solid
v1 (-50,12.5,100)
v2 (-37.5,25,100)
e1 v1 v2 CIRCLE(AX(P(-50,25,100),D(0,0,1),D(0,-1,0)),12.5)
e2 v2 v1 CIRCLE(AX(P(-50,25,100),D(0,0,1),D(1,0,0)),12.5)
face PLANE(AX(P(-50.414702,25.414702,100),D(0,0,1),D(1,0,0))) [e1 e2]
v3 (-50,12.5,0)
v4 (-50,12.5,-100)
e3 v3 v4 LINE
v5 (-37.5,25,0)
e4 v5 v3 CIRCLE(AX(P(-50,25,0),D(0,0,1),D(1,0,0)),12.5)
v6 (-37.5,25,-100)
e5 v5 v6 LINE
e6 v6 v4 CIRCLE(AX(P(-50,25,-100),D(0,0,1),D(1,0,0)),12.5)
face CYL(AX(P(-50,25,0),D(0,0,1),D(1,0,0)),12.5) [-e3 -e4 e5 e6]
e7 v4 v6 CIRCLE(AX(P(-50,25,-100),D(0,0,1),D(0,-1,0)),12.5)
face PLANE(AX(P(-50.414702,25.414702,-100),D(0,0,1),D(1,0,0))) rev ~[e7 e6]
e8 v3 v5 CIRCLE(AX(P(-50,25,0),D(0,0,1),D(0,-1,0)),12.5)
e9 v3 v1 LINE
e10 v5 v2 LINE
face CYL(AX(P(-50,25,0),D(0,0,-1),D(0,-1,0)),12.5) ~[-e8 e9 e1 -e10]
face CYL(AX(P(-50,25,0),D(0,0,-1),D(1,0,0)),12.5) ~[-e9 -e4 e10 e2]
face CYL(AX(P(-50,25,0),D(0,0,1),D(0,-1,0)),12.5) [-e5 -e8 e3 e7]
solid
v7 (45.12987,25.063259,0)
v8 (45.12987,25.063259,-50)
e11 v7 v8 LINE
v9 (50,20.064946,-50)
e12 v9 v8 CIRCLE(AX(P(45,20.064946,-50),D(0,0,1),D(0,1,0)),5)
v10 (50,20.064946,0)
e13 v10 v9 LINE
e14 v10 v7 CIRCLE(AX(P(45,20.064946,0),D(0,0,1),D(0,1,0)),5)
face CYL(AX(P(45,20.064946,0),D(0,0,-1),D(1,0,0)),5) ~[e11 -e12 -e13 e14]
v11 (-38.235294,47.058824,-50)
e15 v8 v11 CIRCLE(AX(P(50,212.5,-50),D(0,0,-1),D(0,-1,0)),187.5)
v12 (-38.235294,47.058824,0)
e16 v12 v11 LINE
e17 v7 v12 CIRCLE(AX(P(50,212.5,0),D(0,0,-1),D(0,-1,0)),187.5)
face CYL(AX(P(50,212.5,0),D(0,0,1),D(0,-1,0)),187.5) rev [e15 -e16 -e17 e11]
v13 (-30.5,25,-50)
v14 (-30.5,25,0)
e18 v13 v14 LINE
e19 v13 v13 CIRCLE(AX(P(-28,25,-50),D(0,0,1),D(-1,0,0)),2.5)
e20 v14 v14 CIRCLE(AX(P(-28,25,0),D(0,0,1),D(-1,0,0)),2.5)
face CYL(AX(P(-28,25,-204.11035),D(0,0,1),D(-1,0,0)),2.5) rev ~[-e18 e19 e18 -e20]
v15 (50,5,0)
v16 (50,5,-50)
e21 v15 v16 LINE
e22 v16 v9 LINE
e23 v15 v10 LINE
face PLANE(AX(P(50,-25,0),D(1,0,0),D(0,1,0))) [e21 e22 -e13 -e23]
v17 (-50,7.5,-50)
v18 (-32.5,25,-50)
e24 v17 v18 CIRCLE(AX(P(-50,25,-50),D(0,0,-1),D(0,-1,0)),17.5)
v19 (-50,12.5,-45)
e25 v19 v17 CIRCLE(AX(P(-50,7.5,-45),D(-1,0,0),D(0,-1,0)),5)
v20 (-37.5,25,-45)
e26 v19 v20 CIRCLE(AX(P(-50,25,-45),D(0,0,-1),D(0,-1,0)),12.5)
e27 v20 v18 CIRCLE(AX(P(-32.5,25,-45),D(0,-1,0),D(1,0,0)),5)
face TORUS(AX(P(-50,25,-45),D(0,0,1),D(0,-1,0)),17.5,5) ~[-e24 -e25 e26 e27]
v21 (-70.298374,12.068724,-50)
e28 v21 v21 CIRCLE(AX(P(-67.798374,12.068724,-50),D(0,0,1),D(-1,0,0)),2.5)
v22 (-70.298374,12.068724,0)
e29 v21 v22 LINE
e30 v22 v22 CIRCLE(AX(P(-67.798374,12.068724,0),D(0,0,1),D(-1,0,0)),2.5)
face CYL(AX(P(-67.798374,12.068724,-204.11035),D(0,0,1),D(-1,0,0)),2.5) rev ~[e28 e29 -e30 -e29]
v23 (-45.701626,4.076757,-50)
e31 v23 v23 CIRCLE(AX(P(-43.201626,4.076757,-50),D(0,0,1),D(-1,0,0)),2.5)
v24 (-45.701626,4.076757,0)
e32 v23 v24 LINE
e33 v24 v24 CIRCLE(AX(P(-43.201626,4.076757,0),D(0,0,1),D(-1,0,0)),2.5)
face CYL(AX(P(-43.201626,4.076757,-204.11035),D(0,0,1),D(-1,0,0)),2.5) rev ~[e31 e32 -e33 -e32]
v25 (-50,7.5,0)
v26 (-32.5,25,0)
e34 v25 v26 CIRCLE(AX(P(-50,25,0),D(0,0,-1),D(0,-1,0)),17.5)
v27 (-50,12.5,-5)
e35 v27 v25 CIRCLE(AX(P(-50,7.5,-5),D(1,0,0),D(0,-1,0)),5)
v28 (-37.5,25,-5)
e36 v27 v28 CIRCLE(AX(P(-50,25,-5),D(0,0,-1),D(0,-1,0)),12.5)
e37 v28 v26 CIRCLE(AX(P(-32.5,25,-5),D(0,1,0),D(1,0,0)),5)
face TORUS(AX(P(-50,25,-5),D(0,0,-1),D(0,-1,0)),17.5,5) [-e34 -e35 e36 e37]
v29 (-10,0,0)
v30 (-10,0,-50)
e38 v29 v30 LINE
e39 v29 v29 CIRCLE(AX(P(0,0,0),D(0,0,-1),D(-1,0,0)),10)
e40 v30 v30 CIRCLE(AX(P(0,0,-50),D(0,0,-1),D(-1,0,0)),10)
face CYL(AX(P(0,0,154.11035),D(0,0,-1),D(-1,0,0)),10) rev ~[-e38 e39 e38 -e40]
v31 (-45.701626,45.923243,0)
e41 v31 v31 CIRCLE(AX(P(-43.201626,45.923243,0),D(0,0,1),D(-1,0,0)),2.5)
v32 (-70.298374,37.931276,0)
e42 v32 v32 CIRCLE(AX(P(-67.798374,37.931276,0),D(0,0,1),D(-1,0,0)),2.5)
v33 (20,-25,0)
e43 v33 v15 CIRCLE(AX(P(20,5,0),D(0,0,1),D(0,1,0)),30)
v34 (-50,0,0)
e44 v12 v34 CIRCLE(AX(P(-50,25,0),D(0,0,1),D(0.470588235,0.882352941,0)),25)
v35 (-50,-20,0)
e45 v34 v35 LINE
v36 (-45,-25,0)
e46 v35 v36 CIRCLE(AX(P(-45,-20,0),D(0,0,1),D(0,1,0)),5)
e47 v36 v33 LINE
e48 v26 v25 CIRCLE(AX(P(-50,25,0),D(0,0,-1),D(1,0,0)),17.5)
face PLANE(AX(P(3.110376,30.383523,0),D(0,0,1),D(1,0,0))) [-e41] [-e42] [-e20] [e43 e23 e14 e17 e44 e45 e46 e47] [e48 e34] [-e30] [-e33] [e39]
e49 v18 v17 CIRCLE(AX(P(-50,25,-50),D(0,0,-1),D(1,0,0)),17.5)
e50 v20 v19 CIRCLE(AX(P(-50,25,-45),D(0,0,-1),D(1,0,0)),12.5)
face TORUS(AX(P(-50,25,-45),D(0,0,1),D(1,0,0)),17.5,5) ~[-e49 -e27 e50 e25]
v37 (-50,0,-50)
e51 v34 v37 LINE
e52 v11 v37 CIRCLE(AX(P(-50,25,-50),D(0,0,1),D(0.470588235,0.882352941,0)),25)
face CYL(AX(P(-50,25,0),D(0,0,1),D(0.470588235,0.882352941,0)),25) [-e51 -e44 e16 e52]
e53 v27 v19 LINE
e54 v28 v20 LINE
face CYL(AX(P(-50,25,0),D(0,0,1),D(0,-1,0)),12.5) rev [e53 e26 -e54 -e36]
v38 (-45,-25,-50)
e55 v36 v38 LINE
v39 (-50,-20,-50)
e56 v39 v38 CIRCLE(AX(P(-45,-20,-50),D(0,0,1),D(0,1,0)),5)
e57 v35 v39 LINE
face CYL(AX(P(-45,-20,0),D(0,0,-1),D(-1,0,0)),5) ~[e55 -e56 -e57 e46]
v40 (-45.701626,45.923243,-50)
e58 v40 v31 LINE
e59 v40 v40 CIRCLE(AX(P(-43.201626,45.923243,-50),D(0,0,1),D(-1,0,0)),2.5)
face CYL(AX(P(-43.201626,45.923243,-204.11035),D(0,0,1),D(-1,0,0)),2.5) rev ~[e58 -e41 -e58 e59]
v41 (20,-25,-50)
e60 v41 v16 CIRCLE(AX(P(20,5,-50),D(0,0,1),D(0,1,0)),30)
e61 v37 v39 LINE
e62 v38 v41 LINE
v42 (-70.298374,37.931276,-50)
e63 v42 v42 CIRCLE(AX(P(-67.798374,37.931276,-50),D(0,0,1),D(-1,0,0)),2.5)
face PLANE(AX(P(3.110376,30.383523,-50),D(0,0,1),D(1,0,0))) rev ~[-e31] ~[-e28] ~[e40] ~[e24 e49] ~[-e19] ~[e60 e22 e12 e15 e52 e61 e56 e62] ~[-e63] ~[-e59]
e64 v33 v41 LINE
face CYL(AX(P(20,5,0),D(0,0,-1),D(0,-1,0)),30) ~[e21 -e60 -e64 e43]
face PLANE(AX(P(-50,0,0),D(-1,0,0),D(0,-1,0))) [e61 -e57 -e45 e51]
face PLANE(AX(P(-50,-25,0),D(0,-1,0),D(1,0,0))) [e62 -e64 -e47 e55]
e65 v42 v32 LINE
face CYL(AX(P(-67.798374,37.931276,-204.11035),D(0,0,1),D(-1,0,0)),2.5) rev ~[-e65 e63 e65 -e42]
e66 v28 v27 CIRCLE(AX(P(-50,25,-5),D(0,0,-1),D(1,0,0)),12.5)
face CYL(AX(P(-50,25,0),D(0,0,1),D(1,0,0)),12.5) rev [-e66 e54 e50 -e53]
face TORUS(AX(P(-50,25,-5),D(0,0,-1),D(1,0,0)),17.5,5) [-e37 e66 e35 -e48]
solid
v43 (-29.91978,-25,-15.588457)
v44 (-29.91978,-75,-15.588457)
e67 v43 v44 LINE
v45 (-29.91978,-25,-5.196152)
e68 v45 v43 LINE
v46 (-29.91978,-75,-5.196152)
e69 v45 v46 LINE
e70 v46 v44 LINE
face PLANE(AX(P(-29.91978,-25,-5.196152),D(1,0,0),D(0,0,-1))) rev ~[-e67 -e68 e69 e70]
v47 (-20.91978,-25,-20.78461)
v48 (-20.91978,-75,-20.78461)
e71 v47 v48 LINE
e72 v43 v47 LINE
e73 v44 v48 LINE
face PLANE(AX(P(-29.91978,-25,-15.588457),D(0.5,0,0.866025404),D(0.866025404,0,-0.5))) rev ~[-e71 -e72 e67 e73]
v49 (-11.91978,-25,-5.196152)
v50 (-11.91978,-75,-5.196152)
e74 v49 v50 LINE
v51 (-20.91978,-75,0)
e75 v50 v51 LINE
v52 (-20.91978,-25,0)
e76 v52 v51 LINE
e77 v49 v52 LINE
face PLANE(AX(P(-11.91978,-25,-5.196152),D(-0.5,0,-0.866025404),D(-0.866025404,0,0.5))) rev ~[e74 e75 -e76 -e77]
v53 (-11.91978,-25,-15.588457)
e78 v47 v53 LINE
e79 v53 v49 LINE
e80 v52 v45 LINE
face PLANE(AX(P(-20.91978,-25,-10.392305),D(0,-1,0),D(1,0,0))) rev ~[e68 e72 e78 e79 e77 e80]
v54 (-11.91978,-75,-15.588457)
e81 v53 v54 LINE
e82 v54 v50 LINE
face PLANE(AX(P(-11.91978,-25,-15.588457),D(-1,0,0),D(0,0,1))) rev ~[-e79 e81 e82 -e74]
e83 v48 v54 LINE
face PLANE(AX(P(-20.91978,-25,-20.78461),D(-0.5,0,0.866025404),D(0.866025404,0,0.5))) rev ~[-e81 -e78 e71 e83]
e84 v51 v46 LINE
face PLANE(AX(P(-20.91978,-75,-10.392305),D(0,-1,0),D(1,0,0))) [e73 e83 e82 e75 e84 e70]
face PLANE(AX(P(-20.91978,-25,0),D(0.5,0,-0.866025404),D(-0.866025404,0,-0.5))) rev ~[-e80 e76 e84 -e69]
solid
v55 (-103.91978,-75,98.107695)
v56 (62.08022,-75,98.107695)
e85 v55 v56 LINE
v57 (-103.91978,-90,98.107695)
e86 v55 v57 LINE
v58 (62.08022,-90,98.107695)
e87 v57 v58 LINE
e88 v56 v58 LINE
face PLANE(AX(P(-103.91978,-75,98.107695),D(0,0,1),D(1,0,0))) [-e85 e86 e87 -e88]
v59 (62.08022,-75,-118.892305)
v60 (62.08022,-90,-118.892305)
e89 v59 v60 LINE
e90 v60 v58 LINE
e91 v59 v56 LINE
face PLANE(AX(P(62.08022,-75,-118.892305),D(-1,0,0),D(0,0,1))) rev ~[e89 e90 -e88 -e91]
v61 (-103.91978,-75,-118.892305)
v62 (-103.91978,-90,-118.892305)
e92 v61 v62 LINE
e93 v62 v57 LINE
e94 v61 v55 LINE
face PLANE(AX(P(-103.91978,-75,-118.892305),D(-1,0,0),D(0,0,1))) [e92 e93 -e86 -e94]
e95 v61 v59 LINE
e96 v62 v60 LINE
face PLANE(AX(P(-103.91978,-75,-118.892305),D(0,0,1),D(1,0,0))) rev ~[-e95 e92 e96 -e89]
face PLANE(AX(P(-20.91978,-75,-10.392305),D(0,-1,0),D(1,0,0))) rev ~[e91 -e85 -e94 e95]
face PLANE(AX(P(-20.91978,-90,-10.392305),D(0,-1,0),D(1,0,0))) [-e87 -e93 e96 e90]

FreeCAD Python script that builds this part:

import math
import FreeCAD as App
import Part
import Sketcher

V = App.Vector
Q = App.Units.Quantity


def edges_at(feature, points):
    """Names of the edges that pass closest to the given points."""
    edges = feature.Shape.Edges
    near = lambda p: min(range(len(edges)), key=lambda i: edges[i].distToShape(Part.Vertex(*p))[0])
    return sorted({f"Edge{near(p) + 1}" for p in points})

doc = App.newDocument("Part")
params = doc.addObject("Spreadsheet::Sheet", "Params")
for row, (alias, value) in enumerate([
    ("sketch1_radius", "25 mm"),
    ("sketch1_radius2", "187.5 mm"),
    ("sketch1_radius3", "12.5 mm"),
    ("pad1_length", "50 mm"),
    ("fillet_radius", "5 mm"),
    ("fillet2_radius", "5 mm"),
    ("sketch2_diameter", "20 mm"),
    ("hole_diameter", "20 mm"),
    ("sketch3_diameter", "5 mm"),
    ("hole2_diameter", "5 mm"),
    ("fillet3_radius", "30 mm"),
    ("sketch4_radius", "12.5 mm"),
    ("pad2_length", "200 mm"),
    ("pad3_length", "50 mm"),
    ("sketch6_width", "166 mm"),
    ("sketch6_height", "217 mm"),
    ("pad4_length", "15 mm"),
], start=1):
    params.set(f"A{row}", alias)
    params.set(f"B{row}", "=" + value)
    params.setAlias(f"B{row}", alias)

body = doc.addObject("PartDesign::Body", "Body")

sketch1 = body.newObject("Sketcher::SketchObject", "Sketch")
sketch1.AttachmentSupport = (doc.getObject("XY_Plane"), [""])
sketch1.MapMode = "FlatFace"
sketch1.addGeometry([
    Part.ArcOfCircle(Part.Circle(V(-50, 25, 0), V(0, 0, 1), 25), math.radians(61.927513), math.radians(270)),
    Part.LineSegment(V(-50, 0, 0), V(-50, -25, 0)),
    Part.LineSegment(V(-50, -25, 0), V(50, -25, 0)),
    Part.LineSegment(V(50, -25, 0), V(50, 25, 0)),
    Part.ArcOfCircle(Part.Circle(V(50, 212.5, 0), V(0, 0, 1), 187.5), math.radians(-118.072487), math.radians(-90)),
    Part.ArcOfCircle(Part.Circle(V(-50, 25, 0), V(0, 0, 1), 12.5), math.radians(0), math.radians(270)),
    Part.ArcOfCircle(Part.Circle(V(-50, 25, 0), V(0, 0, 1), 12.5), math.radians(-90), math.radians(0)),
], False)
sketch1.addConstraint([
    Sketcher.Constraint("Coincident", 0, 2, 1, 1),
    Sketcher.Constraint("Coincident", 1, 2, 2, 1),
    Sketcher.Constraint("Coincident", 2, 2, 3, 1),
    Sketcher.Constraint("Coincident", 3, 2, 4, 2),
    Sketcher.Constraint("Tangent", 4, 1, 0, 1),
    Sketcher.Constraint("Tangent", 5, 1, 6, 2),
    Sketcher.Constraint("Coincident", 6, 1, 5, 2),
    Sketcher.Constraint("Vertical", 1),
    Sketcher.Constraint("Horizontal", 2),
    Sketcher.Constraint("Vertical", 3),
    Sketcher.Constraint("Coincident", 5, 3, 0, 3),
    Sketcher.Constraint("Symmetric", 1, 2, 3, 2, -1, 1),
    Sketcher.Constraint("PointOnObject", 0, 2, -1),
    Sketcher.Constraint("Horizontal", 6, 3, 3, 2),
    Sketcher.Constraint("Horizontal", 3, 2, 5, 1),
    Sketcher.Constraint("Vertical", 6, 3, 0, 2),
    Sketcher.Constraint("Vertical", 4, 3, 2, 2),
    Sketcher.Constraint("Vertical", 1, 2, 6, 1),
    Sketcher.Constraint("Radius", 0, Q("25 mm")),
    Sketcher.Constraint("Radius", 4, Q("187.5 mm")),
    Sketcher.Constraint("Radius", 5, Q("12.5 mm")),
])
sketch1.setExpression("Constraints[18]", "Params.sketch1_radius")
sketch1.setExpression("Constraints[19]", "Params.sketch1_radius2")
sketch1.setExpression("Constraints[20]", "Params.sketch1_radius3")
pad1 = body.newObject("PartDesign::Pad", "Pad")
pad1.Profile = sketch1
pad1.setExpression("Length", "Params.pad1_length")
pad1.Reversed = True
doc.recompute()

fillet = body.newObject("PartDesign::Fillet", "Fillet")
fillet.Base = (pad1, edges_at(pad1, [(-37.5, 25, -25), (-58.839, 33.839, 0), (-58.839, 33.839, -50)]))
fillet.setExpression("Radius", "Params.fillet_radius")
doc.recompute()

fillet2 = body.newObject("PartDesign::Fillet", "Fillet001")
fillet2.Base = (fillet, edges_at(fillet, [(-50, -25, -25), (50, 25, -25)]))
fillet2.setExpression("Radius", "Params.fillet2_radius")

sketch2 = body.newObject("Sketcher::SketchObject", "Sketch001")
sketch2.AttachmentSupport = (doc.getObject("XY_Plane"), [""])
sketch2.MapMode = "FlatFace"
sketch2.addGeometry(Part.Circle(V(0, 0, 0), V(0, 0, 1), 10), False)
sketch2.addConstraint([
    Sketcher.Constraint("Coincident", 0, 3, -1, 1),
    Sketcher.Constraint("Diameter", 0, Q("20 mm")),
])
sketch2.setExpression("Constraints[1]", "Params.sketch2_diameter")
doc.recompute()
hole = body.newObject("PartDesign::Hole", "Hole")
hole.Profile = sketch2
hole.ThreadType = "None"
hole.setExpression("Diameter", "Params.hole_diameter")
hole.DepthType = "ThroughAll"

sketch3 = body.newObject("Sketcher::SketchObject", "Sketch002")
sketch3.AttachmentSupport = (doc.getObject("XY_Plane"), [""])
sketch3.MapMode = "FlatFace"
sketch3.AttachmentOffset = App.Placement(V(0, 0, -50), App.Rotation())
sketch3.addGeometry([
    Part.Circle(V(-43.201626, 45.923243, 0), V(0, 0, 1), 2.5),
    Part.Circle(V(-67.798374, 37.931276, 0), V(0, 0, 1), 2.5),
    Part.Circle(V(-67.798374, 12.068724, 0), V(0, 0, 1), 2.5),
    Part.Circle(V(-43.201626, 4.076757, 0), V(0, 0, 1), 2.5),
    Part.Circle(V(-28, 25, 0), V(0, 0, 1), 2.5),
], False)
sketch3.addConstraint([
    Sketcher.Constraint("Equal", 0, 1),
    Sketcher.Constraint("Equal", 1, 2),
    Sketcher.Constraint("Equal", 2, 3),
    Sketcher.Constraint("Equal", 3, 4),
    Sketcher.Constraint("Vertical", 1, 3, 2, 3),
    Sketcher.Constraint("Vertical", 0, 3, 3, 3),
    Sketcher.Constraint("Diameter", 0, Q("5 mm")),
    Sketcher.Constraint("DistanceX", 4, 3, -1, 1, Q("28 mm")),
    Sketcher.Constraint("DistanceY", -1, 1, 4, 3, Q("25 mm")),
    Sketcher.Constraint("DistanceY", 2, 3, 1, 3, Q("25.862551 mm")),
    Sketcher.Constraint("DistanceY", 2, 3, 0, 3, Q("33.854519 mm")),
    Sketcher.Constraint("DistanceY", 3, 3, 1, 3, Q("33.854519 mm")),
    Sketcher.Constraint("DistanceX", 0, 3, -1, 1, Q("43.201626 mm")),
    Sketcher.Constraint("DistanceY", -1, 1, 0, 3, Q("45.923243 mm")),
    Sketcher.Constraint("DistanceX", 1, 3, -1, 1, Q("67.798374 mm")),
])
sketch3.setExpression("Constraints[6]", "Params.sketch3_diameter")
doc.recompute()
hole2 = body.newObject("PartDesign::Hole", "Hole001")
hole2.Profile = sketch3
hole2.ThreadType = "None"
hole2.setExpression("Diameter", "Params.hole2_diameter")
hole2.DepthType = "ThroughAll"
hole2.Reversed = True
doc.recompute()

fillet3 = body.newObject("PartDesign::Fillet", "Fillet002")
fillet3.Base = (hole2, edges_at(hole2, [(50, -25, -25)]))
fillet3.setExpression("Radius", "Params.fillet3_radius")
body2 = doc.addObject("PartDesign::Body", "Body001")

sketch4 = body2.newObject("Sketcher::SketchObject", "Sketch003")
sketch4.AttachmentSupport = (doc.getObject("XY_Plane001"), [""])
sketch4.MapMode = "FlatFace"
sketch4.addGeometry([
    Part.ArcOfCircle(Part.Circle(V(-50, 25, 0), V(0, 0, 1), 12.5), math.radians(0), math.radians(270)),
    Part.ArcOfCircle(Part.Circle(V(-50, 25, 0), V(0, 0, 1), 12.5), math.radians(-90), math.radians(0)),
], False)
sketch4.addConstraint([
    Sketcher.Constraint("Tangent", 0, 1, 1, 2),
    Sketcher.Constraint("Coincident", 1, 1, 0, 2),
    Sketcher.Constraint("Horizontal", 1, 3, 0, 1),
    Sketcher.Constraint("Vertical", 0, 3, 1, 1),
    Sketcher.Constraint("Radius", 0, Q("12.5 mm")),
    Sketcher.Constraint("DistanceX", 0, 3, -1, 1, Q("50 mm")),
    Sketcher.Constraint("DistanceY", -1, 1, 0, 3, Q("25 mm")),
])
sketch4.setExpression("Constraints[4]", "Params.sketch4_radius")
pad2 = body2.newObject("PartDesign::Pad", "Pad001")
pad2.Profile = sketch4
pad2.setExpression("Length", "Params.pad2_length")
pad2.Midplane = True
body3 = doc.addObject("PartDesign::Body", "Body002")

sketch5 = body3.newObject("Sketcher::SketchObject", "Sketch004")
sketch5.AttachmentSupport = (doc.getObject("XZ_Plane002"), [""])
sketch5.MapMode = "FlatFace"
sketch5.AttachmentOffset = App.Placement(V(0, 0, 25), App.Rotation())
sketch5.addGeometry([
    Part.LineSegment(V(-11.91978, -15.588457, 0), V(-11.91978, -5.196152, 0)),
    Part.LineSegment(V(-11.91978, -5.196152, 0), V(-20.91978, 0, 0)),
    Part.LineSegment(V(-20.91978, 0, 0), V(-29.91978, -5.196152, 0)),
    Part.LineSegment(V(-29.91978, -5.196152, 0), V(-29.91978, -15.588457, 0)),
    Part.LineSegment(V(-29.91978, -15.588457, 0), V(-20.91978, -20.78461, 0)),
    Part.LineSegment(V(-20.91978, -20.78461, 0), V(-11.91978, -15.588457, 0)),
], False)
sketch5.addConstraint([
    Sketcher.Constraint("Coincident", 0, 2, 1, 1),
    Sketcher.Constraint("Coincident", 1, 2, 2, 1),
    Sketcher.Constraint("Coincident", 2, 2, 3, 1),
    Sketcher.Constraint("Coincident", 3, 2, 4, 1),
    Sketcher.Constraint("Coincident", 4, 2, 5, 1),
    Sketcher.Constraint("Coincident", 5, 2, 0, 1),
    Sketcher.Constraint("Vertical", 0),
    Sketcher.Constraint("Vertical", 3),
    Sketcher.Constraint("PointOnObject", 1, 2, -1),
    Sketcher.Constraint("Parallel", 1, 4),
    Sketcher.Constraint("Parallel", 2, 5),
    Sketcher.Constraint("Horizontal", 0, 2, 2, 2),
    Sketcher.Constraint("Horizontal", 3, 2, 5, 2),
    Sketcher.Constraint("Vertical", 1, 2, 4, 2),
    Sketcher.Constraint("Angle", 1, Q("150 deg")),
    Sketcher.Constraint("DistanceX", 1, 2, 0, 2, Q("9 mm")),
    Sketcher.Constraint("DistanceY", 0, 1, 0, 2, Q("10.392305 mm")),
    Sketcher.Constraint("DistanceX", 0, 2, -1, 1, Q("11.91978 mm")),
])
pad3 = body3.newObject("PartDesign::Pad", "Pad002")
pad3.Profile = sketch5
pad3.setExpression("Length", "Params.pad3_length")
body4 = doc.addObject("PartDesign::Body", "Body003")

sketch6 = body4.newObject("Sketcher::SketchObject", "Sketch005")
sketch6.AttachmentSupport = (doc.getObject("XZ_Plane003"), [""])
sketch6.MapMode = "FlatFace"
sketch6.AttachmentOffset = App.Placement(V(0, 0, 75), App.Rotation())
sketch6.addGeometry([
    Part.LineSegment(V(-103.91978, 98.107695, 0), V(-103.91978, -118.892305, 0)),
    Part.LineSegment(V(-103.91978, -118.892305, 0), V(62.08022, -118.892305, 0)),
    Part.LineSegment(V(62.08022, -118.892305, 0), V(62.08022, 98.107695, 0)),
    Part.LineSegment(V(62.08022, 98.107695, 0), V(-103.91978, 98.107695, 0)),
], False)
sketch6.addConstraint([
    Sketcher.Constraint("Coincident", 0, 2, 1, 1),
    Sketcher.Constraint("Coincident", 1, 2, 2, 1),
    Sketcher.Constraint("Coincident", 2, 2, 3, 1),
    Sketcher.Constraint("Coincident", 3, 2, 0, 1),
    Sketcher.Constraint("Vertical", 0),
    Sketcher.Constraint("Horizontal", 1),
    Sketcher.Constraint("Vertical", 2),
    Sketcher.Constraint("Horizontal", 3),
    Sketcher.Constraint("DistanceX", 1, 1, 1, 2, Q("166 mm")),
    Sketcher.Constraint("DistanceY", 0, 2, 0, 1, Q("217 mm")),
    Sketcher.Constraint("DistanceX", 0, 2, -1, 1, Q("103.91978 mm")),
    Sketcher.Constraint("DistanceY", 0, 2, -1, 1, Q("118.892305 mm")),
])
sketch6.setExpression("Constraints[8]", "Params.sketch6_width")
sketch6.setExpression("Constraints[9]", "Params.sketch6_height")
pad4 = body4.newObject("PartDesign::Pad", "Pad003")
pad4.Profile = sketch6
pad4.setExpression("Length", "Params.pad4_length")

doc.recompute()
